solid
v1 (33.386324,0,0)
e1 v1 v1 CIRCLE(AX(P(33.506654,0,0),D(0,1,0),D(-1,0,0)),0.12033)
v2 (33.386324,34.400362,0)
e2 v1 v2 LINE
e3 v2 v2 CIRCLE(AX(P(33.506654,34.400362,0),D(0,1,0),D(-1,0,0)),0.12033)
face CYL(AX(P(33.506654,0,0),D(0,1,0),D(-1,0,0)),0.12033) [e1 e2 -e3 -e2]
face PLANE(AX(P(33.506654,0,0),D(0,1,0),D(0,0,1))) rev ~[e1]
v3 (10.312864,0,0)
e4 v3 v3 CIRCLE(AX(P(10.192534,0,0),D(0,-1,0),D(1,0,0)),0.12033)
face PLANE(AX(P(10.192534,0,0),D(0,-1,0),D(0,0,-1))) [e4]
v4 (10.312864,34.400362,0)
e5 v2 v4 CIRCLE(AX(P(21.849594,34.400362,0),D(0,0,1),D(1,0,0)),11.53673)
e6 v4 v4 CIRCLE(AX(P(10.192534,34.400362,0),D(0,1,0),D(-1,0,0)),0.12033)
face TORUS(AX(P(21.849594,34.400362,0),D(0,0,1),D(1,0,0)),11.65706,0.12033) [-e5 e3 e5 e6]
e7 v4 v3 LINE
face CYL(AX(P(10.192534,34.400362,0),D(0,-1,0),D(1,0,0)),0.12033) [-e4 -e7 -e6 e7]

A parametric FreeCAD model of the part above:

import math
import FreeCAD as App
import Part
import Sketcher
from FreeCAD import Vector
Q = App.Units.Quantity

doc = App.newDocument("Part")
body = doc.addObject("PartDesign::Body", "Body")

sketch1 = doc.addObject("Sketcher::SketchObject", "Sketch")
body.addObject(sketch1)
sketch1.AttachmentSupport = (doc.XZ_Plane, [""])
sketch1.MapMode = "FlatFace"
sketch1.addGeometry(Part.Circle(Vector(10.19, 0, 0), Vector(0, 0, 1), 0.12), False)
sketch1.addConstraint(Sketcher.Constraint("PointOnObject", 0, 3, -1))
sketch1.addConstraint(Sketcher.Constraint("Diameter", 0, Q("0.24066 mm")))
sketch1.addConstraint(Sketcher.Constraint("DistanceX", -1, 1, 0, 3, Q("10.192534 mm")))

sketch2 = doc.addObject("Sketcher::SketchObject", "Sketch001")
body.addObject(sketch2)
sketch2.AttachmentSupport = (doc.XY_Plane, [""])
sketch2.MapMode = "FlatFace"
sketch2.addGeometry(Part.LineSegment(Vector(34, 0, 0), Vector(34, 34, 0)), False)
sketch2.addGeometry(Part.ArcOfCircle(Part.Circle(Vector(22, 34, 0), Vector(0, 0, 1), 12), math.radians(0), math.radians(180)), False)
sketch2.addGeometry(Part.LineSegment(Vector(10, 34, 0), Vector(10, 0, 0)), False)
sketch2.addConstraint(Sketcher.Constraint("Tangent", 0, 2, 1, 1))
sketch2.addConstraint(Sketcher.Constraint("Tangent", 1, 2, 2, 1))
sketch2.addConstraint(Sketcher.Constraint("Vertical", 0))
sketch2.addConstraint(Sketcher.Constraint("Vertical", 2))
sketch2.addConstraint(Sketcher.Constraint("PointOnObject", 0, 1, -1))
sketch2.addConstraint(Sketcher.Constraint("PointOnObject", 2, 2, -1))
sketch2.addConstraint(Sketcher.Constraint("Radius", 1, Q("11.676299 mm")))
sketch2.addConstraint(Sketcher.Constraint("DistanceY", 0, 1, 0, 2, Q("34.400362 mm")))
sketch2.addConstraint(Sketcher.Constraint("DistanceX", -1, 1, 1, 3, Q("21.849594 mm")))
doc.recompute()

additivepipe = doc.addObject("PartDesign::AdditivePipe", "AdditivePipe")
body.addObject(additivepipe)
additivepipe.Profile = sketch1
additivepipe.Spine = (sketch2, ["Edge1", "Edge2", "Edge3"])

doc.recompute()
